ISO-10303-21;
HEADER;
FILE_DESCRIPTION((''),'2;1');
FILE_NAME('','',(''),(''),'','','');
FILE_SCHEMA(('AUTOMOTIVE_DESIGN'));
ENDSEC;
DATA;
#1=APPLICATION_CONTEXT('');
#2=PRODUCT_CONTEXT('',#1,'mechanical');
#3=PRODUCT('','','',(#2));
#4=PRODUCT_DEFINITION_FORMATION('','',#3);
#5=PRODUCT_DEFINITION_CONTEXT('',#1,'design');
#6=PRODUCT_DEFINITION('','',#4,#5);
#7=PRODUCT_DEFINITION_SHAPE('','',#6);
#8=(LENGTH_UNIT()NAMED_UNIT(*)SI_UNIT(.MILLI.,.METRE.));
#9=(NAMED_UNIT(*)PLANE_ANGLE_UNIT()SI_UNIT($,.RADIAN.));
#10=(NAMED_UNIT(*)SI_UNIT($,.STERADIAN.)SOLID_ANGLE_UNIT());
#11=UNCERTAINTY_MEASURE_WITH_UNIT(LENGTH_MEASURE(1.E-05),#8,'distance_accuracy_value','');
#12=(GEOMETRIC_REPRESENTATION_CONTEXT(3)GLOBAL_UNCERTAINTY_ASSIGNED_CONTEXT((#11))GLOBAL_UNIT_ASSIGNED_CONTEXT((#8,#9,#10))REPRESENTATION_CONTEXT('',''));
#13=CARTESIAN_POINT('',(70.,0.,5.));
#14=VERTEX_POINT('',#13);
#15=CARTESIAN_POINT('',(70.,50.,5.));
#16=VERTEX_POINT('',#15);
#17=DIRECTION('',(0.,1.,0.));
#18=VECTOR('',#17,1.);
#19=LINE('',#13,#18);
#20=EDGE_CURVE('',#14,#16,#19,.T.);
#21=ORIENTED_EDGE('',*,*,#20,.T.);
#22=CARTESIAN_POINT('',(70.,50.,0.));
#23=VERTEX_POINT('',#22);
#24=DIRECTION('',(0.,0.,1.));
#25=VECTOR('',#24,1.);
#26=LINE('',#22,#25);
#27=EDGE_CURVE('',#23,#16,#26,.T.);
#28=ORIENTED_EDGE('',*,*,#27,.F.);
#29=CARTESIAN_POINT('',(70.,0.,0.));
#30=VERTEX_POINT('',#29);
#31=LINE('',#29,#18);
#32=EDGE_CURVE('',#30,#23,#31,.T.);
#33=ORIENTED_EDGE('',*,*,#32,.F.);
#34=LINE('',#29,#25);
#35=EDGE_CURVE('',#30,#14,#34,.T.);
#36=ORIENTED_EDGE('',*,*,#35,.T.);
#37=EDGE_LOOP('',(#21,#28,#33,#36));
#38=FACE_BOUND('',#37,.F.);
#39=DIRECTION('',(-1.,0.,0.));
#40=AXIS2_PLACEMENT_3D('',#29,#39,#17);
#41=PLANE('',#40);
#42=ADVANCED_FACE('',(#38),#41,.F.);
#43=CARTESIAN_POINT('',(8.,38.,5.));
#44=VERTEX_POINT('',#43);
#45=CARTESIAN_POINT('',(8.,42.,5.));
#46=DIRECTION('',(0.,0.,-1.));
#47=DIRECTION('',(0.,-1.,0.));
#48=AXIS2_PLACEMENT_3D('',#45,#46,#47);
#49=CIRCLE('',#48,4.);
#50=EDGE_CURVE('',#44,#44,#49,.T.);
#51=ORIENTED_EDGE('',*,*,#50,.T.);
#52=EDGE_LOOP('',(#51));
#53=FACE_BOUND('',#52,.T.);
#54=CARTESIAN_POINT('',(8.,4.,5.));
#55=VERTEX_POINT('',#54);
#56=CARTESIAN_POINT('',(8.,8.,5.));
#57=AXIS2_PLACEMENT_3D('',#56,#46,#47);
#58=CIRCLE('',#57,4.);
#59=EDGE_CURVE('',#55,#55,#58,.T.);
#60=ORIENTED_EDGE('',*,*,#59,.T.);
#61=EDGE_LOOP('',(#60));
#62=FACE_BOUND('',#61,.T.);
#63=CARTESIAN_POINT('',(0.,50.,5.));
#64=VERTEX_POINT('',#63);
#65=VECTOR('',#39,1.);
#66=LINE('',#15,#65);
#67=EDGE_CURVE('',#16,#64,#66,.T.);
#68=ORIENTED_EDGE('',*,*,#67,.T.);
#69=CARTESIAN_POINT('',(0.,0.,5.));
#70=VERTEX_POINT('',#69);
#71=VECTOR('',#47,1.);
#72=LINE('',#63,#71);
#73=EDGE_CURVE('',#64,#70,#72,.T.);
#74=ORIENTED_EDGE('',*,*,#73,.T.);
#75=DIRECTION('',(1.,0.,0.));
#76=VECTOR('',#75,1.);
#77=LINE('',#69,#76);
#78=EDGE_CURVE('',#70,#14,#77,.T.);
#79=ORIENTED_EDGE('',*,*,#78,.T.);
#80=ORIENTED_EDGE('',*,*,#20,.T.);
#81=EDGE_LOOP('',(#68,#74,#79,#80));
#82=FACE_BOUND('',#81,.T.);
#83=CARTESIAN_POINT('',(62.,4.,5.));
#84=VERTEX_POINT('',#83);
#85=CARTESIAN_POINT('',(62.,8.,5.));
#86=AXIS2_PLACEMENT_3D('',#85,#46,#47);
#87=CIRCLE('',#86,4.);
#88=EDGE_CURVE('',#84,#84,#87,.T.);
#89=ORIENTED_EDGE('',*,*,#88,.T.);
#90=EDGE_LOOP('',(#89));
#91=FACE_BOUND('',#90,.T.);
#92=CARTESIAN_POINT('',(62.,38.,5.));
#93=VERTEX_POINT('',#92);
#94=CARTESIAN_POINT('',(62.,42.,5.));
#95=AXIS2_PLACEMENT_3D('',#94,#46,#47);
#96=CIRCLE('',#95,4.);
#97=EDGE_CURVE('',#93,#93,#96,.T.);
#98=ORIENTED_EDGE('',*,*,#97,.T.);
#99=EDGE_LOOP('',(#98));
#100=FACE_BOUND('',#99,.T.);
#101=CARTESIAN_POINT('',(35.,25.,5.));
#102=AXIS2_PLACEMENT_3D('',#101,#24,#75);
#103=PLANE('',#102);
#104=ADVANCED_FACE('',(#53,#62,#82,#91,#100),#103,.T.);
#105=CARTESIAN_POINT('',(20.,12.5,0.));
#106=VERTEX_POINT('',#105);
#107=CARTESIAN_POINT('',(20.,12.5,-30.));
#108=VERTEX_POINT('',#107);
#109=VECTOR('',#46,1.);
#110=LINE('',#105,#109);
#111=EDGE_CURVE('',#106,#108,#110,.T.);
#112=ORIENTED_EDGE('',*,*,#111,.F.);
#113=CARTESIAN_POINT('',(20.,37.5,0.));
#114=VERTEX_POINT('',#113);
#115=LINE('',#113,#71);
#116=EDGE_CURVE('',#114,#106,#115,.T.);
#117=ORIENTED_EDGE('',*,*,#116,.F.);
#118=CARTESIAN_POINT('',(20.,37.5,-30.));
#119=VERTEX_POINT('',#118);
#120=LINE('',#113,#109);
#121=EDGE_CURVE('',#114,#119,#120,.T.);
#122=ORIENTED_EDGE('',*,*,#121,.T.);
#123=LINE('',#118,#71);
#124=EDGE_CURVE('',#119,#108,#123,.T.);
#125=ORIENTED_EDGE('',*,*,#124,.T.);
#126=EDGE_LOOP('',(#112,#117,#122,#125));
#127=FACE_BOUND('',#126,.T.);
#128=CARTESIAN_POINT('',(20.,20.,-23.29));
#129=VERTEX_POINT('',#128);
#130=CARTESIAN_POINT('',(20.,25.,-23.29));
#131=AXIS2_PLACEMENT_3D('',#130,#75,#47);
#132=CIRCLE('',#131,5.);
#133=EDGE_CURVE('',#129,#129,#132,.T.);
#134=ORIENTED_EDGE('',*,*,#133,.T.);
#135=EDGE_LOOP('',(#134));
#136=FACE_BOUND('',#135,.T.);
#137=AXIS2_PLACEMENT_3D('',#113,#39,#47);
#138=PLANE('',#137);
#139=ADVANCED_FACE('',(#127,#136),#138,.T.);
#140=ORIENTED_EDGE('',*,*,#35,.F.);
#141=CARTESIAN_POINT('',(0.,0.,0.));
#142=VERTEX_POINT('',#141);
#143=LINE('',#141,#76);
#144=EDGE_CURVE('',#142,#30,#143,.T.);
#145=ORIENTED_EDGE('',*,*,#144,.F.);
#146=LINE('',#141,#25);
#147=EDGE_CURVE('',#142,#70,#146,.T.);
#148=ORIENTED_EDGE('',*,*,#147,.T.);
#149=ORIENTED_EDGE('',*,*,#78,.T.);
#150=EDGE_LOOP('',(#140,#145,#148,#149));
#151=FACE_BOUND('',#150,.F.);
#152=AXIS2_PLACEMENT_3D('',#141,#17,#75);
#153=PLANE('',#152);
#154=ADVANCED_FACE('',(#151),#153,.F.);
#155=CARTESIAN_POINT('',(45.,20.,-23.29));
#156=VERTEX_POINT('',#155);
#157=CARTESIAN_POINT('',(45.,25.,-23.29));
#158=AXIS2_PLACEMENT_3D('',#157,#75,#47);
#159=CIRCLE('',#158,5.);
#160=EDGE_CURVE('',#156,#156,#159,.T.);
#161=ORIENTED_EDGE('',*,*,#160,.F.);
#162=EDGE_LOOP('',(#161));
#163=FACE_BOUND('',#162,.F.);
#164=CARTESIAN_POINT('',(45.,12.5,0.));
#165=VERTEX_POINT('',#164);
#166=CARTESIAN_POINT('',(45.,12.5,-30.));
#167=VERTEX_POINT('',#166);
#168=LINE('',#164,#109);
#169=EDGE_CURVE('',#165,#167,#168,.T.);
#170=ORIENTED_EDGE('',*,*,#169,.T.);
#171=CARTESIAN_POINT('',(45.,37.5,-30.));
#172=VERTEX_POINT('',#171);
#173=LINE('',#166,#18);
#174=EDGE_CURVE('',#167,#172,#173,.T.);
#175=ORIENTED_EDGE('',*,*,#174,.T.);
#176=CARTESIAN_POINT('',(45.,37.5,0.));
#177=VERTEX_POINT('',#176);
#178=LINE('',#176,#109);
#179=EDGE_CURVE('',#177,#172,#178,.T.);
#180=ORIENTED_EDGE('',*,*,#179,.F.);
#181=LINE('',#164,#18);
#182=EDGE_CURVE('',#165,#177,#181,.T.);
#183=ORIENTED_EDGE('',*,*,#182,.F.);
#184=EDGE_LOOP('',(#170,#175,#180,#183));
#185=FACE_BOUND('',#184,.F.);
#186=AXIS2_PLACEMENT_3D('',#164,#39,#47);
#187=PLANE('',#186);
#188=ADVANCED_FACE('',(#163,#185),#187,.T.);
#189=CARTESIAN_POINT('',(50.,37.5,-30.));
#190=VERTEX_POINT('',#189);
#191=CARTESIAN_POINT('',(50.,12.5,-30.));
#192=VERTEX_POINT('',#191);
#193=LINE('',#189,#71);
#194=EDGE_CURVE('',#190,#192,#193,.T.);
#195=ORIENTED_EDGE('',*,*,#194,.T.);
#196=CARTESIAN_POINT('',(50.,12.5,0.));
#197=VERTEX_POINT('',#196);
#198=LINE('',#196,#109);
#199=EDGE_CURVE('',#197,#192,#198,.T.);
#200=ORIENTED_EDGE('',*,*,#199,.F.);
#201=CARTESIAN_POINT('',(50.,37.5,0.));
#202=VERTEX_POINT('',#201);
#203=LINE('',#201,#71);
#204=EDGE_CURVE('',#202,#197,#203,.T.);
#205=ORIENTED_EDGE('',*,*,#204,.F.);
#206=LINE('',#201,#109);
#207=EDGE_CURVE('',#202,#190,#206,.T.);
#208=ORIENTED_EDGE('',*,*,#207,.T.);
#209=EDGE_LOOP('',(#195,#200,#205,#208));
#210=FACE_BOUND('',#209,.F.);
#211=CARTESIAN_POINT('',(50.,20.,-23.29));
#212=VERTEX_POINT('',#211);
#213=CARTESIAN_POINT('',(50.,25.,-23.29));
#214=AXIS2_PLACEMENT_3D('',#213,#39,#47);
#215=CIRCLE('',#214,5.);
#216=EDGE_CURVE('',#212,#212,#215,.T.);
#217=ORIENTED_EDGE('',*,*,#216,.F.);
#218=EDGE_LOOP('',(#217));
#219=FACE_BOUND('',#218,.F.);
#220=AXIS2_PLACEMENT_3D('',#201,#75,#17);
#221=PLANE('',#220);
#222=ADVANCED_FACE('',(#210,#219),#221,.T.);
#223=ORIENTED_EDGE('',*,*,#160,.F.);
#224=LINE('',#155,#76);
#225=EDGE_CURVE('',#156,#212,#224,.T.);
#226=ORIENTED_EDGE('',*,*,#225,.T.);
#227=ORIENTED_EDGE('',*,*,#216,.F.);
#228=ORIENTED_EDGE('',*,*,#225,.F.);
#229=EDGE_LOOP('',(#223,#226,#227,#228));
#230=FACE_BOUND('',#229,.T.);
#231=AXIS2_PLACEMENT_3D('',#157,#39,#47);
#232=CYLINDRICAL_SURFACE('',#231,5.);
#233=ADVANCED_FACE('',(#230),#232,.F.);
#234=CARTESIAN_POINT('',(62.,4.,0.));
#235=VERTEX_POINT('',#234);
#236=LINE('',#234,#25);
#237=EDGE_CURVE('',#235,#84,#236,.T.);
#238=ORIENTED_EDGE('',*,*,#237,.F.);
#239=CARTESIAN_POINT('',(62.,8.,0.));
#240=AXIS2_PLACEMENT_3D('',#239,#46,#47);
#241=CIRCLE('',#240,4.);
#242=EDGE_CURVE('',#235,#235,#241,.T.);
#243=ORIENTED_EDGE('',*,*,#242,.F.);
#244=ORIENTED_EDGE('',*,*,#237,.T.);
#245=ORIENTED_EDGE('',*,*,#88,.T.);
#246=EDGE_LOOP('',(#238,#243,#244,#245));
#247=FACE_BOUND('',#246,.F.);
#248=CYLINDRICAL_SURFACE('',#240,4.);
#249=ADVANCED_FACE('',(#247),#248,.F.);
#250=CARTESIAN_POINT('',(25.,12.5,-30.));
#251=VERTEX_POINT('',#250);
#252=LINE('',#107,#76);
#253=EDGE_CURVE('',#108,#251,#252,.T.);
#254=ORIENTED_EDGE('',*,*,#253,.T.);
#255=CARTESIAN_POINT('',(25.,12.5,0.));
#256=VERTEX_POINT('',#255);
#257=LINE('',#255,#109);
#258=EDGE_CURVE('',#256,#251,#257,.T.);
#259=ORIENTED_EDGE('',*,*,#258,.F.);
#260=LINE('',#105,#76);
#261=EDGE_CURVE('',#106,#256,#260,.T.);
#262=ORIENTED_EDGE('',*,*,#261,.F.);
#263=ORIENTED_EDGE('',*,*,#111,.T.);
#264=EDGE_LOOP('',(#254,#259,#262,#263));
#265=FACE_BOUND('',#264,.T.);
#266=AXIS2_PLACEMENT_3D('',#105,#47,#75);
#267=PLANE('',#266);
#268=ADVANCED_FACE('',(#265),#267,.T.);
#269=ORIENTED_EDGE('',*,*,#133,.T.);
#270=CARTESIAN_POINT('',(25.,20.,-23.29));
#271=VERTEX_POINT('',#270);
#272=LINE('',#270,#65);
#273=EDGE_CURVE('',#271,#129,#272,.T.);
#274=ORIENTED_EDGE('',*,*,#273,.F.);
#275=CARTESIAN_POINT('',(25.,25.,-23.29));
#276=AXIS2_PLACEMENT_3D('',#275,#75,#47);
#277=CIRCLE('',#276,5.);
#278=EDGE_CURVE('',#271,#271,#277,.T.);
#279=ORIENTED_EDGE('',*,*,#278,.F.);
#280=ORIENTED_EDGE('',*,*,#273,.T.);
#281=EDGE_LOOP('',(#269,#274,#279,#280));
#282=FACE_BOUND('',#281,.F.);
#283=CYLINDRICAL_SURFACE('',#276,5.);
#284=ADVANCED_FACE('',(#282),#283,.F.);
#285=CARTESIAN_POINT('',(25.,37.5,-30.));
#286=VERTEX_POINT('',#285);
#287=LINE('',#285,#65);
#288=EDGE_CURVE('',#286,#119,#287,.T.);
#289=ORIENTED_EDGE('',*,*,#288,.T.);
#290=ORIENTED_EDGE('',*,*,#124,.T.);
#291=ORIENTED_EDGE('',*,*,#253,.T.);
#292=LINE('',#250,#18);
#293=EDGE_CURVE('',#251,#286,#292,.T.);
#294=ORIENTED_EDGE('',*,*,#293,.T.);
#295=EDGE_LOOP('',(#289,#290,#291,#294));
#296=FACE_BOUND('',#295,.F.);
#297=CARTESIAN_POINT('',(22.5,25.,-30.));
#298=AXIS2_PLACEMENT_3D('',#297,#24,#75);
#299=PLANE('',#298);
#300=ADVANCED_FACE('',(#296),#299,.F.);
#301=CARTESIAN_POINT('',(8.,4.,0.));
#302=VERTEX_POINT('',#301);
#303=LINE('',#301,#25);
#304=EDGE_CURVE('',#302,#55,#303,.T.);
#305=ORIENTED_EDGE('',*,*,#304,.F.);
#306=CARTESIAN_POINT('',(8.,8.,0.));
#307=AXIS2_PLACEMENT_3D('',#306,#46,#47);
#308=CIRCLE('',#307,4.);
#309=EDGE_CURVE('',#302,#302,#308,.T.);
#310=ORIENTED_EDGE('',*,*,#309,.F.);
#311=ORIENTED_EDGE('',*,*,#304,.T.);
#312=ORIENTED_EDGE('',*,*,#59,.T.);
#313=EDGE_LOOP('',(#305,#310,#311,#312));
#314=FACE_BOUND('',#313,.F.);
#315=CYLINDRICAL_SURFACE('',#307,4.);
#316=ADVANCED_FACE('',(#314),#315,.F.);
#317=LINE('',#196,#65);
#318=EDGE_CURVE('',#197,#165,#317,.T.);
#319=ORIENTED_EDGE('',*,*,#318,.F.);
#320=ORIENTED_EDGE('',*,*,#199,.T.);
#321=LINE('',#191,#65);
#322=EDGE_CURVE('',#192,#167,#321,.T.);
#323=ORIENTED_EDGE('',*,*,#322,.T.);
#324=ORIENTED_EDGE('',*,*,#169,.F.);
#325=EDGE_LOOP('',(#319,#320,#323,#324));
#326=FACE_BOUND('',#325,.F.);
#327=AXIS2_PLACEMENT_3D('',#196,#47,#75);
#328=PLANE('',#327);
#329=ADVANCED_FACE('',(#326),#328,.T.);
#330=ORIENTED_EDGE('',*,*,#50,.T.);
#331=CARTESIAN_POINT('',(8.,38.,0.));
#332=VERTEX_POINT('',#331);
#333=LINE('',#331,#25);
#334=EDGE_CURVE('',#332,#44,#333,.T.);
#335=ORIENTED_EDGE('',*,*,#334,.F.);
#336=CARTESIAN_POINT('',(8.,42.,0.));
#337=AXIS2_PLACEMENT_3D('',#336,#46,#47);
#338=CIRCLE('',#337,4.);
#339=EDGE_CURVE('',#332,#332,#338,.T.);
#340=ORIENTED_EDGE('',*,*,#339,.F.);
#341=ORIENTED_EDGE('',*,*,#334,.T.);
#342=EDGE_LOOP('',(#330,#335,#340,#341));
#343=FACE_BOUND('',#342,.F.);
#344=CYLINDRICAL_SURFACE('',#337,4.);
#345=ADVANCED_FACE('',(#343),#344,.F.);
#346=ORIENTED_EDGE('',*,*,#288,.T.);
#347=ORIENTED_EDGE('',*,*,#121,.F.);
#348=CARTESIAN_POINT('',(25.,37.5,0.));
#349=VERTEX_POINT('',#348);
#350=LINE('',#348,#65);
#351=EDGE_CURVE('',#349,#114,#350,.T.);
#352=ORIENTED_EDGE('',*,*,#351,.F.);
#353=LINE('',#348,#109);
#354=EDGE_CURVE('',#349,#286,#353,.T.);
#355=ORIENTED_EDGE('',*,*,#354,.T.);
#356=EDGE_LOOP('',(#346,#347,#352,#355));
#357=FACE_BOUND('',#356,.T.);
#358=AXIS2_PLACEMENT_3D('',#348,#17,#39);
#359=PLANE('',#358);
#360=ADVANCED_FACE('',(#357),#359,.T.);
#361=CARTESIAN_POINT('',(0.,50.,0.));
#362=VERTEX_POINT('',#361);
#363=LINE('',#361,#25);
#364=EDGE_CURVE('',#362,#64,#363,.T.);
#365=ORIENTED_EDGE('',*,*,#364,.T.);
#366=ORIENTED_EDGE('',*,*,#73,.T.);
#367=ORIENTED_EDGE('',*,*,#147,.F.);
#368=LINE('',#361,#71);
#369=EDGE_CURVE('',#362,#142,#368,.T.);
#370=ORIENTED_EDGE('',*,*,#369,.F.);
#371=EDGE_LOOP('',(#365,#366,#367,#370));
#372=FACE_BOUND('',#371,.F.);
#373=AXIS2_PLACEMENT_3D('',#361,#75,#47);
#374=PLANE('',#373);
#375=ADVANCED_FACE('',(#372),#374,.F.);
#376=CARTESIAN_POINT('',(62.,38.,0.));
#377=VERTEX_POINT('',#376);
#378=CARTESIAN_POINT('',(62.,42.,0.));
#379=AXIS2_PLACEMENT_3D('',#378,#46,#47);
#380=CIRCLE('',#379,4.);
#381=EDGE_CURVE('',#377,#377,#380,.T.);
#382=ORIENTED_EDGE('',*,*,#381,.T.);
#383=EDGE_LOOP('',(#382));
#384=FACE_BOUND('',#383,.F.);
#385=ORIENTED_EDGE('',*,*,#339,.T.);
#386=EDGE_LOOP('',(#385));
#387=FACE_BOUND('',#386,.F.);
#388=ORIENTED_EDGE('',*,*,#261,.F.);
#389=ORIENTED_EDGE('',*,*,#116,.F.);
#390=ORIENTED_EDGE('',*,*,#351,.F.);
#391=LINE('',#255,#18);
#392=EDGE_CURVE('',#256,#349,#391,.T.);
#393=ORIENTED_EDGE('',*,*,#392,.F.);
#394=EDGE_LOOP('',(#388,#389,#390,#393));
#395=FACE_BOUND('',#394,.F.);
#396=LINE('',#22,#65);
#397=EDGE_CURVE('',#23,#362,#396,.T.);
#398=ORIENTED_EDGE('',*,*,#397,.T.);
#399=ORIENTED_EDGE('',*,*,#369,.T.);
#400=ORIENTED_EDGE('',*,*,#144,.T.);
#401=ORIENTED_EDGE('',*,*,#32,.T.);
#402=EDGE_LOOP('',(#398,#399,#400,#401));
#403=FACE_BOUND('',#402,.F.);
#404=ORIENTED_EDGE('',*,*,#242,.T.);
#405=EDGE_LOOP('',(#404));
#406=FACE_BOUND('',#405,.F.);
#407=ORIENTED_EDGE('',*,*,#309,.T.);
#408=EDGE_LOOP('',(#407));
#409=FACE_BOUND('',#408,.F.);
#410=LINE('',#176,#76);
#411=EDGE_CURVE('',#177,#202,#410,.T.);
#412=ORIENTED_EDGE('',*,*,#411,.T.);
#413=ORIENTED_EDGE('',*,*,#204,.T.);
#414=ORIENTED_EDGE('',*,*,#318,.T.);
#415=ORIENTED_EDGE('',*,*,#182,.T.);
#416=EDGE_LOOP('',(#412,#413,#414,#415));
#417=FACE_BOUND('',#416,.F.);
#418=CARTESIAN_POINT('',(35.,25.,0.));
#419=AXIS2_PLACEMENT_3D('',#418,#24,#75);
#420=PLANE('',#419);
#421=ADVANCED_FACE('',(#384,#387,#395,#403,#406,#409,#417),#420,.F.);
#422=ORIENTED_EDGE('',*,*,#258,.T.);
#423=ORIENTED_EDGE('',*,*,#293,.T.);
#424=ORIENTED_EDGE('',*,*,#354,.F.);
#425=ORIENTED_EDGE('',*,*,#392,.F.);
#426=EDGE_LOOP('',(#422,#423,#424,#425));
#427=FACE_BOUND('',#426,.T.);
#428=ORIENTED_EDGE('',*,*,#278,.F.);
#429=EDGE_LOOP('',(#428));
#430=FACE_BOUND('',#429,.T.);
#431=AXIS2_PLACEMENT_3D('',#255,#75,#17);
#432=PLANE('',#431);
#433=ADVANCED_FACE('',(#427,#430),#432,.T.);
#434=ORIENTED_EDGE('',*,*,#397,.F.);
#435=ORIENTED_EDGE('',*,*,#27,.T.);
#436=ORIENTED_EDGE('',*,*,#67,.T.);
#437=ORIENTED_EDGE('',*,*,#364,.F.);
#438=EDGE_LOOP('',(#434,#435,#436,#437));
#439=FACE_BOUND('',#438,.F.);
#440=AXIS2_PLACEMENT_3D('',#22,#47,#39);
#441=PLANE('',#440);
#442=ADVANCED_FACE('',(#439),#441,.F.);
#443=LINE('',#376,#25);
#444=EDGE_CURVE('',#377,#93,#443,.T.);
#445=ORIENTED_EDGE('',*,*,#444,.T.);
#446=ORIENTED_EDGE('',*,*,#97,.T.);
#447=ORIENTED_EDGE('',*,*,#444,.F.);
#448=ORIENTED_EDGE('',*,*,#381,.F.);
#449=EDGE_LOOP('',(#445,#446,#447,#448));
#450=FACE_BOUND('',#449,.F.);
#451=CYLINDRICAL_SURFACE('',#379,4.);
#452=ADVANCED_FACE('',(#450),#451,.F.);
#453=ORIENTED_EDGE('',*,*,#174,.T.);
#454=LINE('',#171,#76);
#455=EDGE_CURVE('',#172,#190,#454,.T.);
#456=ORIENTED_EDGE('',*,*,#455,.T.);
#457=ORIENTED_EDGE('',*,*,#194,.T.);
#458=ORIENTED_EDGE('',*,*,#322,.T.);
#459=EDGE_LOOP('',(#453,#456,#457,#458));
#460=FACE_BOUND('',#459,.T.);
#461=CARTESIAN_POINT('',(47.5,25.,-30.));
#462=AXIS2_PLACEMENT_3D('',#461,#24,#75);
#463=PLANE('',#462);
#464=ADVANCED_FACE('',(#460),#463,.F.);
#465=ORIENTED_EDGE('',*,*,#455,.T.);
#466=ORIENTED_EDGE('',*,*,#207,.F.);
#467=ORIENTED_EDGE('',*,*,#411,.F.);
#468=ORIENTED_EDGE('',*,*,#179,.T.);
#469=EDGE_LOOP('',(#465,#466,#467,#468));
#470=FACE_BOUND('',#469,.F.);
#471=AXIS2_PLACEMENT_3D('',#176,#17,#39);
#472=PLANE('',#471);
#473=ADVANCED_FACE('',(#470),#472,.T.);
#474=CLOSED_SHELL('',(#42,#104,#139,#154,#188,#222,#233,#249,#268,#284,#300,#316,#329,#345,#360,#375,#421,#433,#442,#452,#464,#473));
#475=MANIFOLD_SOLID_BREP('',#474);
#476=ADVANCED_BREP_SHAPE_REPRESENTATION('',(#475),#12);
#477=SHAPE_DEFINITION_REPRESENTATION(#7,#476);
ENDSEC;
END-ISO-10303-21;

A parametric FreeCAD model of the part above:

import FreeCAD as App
import Part
import Sketcher

V = App.Vector


def add_polygon(sketch, points):
    """Adds a closed chain of lines whose ends are joined by coincident constraints."""
    first, n = sketch.GeometryCount, len(points)
    for a, b in zip(points, points[1:] + points[:1]):
        sketch.addGeometry(Part.LineSegment(App.Vector(*a, 0), App.Vector(*b, 0)), False)
    for i in range(n):
        sketch.addConstraint(Sketcher.Constraint("Coincident", first + i, 2, first + (i + 1) % n, 1))

doc = App.newDocument("Part")
params = doc.addObject("Spreadsheet::Sheet", "Params")
for row, (alias, value) in enumerate([
    ("sketch1_width", "70 mm"),
    ("sketch1_height", "50 mm"),
    ("pad1_length", "5 mm"),
    ("sketch2_width", "5 mm"),
    ("sketch2_height", "25 mm"),
    ("pad2_length", "30 mm"),
    ("sketch3_diameter", "10 mm"),
    ("pocket1_length", "57.348 mm"),
    ("sketch4_diameter", "8 mm"),
    ("pocket2_length", "22.6316 mm"),
], start=1):
    params.set(f"A{row}", alias)
    params.set(f"B{row}", "=" + value)
    params.setAlias(f"B{row}", alias)

body = doc.addObject("PartDesign::Body", "Body")

sketch1 = doc.addObject("Sketcher::SketchObject", "Sketch")
body.addObject(sketch1)
sketch1.AttachmentSupport = (doc.XY_Plane, [""])
sketch1.MapMode = "FlatFace"
add_polygon(sketch1, [(0, 50), (0, 0), (70, 0), (70, 50)])
sketch1.addConstraint([
    Sketcher.Constraint("Vertical", 0),
    Sketcher.Constraint("Horizontal", 1),
    Sketcher.Constraint("Vertical", 2),
    Sketcher.Constraint("Horizontal", 3),
    Sketcher.Constraint("Coincident", 0, 2, -1, 1),
    Sketcher.Constraint("DistanceX", 1, 1, 1, 2, 70.0),
    Sketcher.Constraint("DistanceY", 0, 2, 0, 1, 50.0),
])
sketch1.setExpression("Constraints[9]", "Params.sketch1_width")
sketch1.setExpression("Constraints[10]", "Params.sketch1_height")
pad1 = doc.addObject("PartDesign::Pad", "Pad")
body.addObject(pad1)
pad1.Profile = sketch1
pad1.setExpression("Length", "Params.pad1_length")

sketch2 = doc.addObject("Sketcher::SketchObject", "Sketch001")
body.addObject(sketch2)
sketch2.AttachmentSupport = (doc.XY_Plane, [""])
sketch2.MapMode = "FlatFace"
add_polygon(sketch2, [(20, 12.5), (25, 12.5), (25, 37.5), (20, 37.5)])
sketch2.addConstraint([
    Sketcher.Constraint("Horizontal", 0),
    Sketcher.Constraint("Vertical", 1),
    Sketcher.Constraint("Horizontal", 2),
    Sketcher.Constraint("Vertical", 3),
    Sketcher.Constraint("DistanceX", 0, 1, 0, 2, 5.0),
    Sketcher.Constraint("DistanceY", 1, 1, 1, 2, 25.0),
    Sketcher.Constraint("DistanceX", -1, 1, 0, 2, 25.0),
    Sketcher.Constraint("DistanceY", -1, 1, 0, 2, 12.5),
])
sketch2.setExpression("Constraints[8]", "Params.sketch2_width")
sketch2.setExpression("Constraints[9]", "Params.sketch2_height")
pad2 = doc.addObject("PartDesign::Pad", "Pad001")
body.addObject(pad2)
pad2.Profile = sketch2
pad2.setExpression("Length", "Params.pad2_length")
pad2.Reversed = True

sketch3 = doc.addObject("Sketcher::SketchObject", "Sketch002")
body.addObject(sketch3)
sketch3.AttachmentSupport = (doc.YZ_Plane, [""])
sketch3.MapMode = "FlatFace"
sketch3.AttachmentOffset = App.Placement(V(0, 0, 25), App.Rotation())
sketch3.addGeometry(Part.Circle(V(25, -23.29, 0), V(0, 0, 1), 5), False)
sketch3.addConstraint([
    Sketcher.Constraint("Diameter", 0, 10.0),
    Sketcher.Constraint("DistanceX", -1, 1, 0, 3, 25.0),
    Sketcher.Constraint("DistanceY", 0, 3, -1, 1, 23.29),
])
sketch3.setExpression("Constraints[0]", "Params.sketch3_diameter")
pocket1 = doc.addObject("PartDesign::Pocket", "Pocket")
body.addObject(pocket1)
pocket1.Profile = sketch3
pocket1.setExpression("Length", "Params.pocket1_length")

sketch4 = doc.addObject("Sketcher::SketchObject", "Sketch003")
body.addObject(sketch4)
sketch4.AttachmentSupport = (doc.XY_Plane, [""])
sketch4.MapMode = "FlatFace"
sketch4.addGeometry([
    Part.Circle(V(62, 8, 0), V(0, 0, 1), 4),
    Part.Circle(V(62, 42, 0), V(0, 0, 1), 4),
    Part.Circle(V(8, 42, 0), V(0, 0, 1), 4),
    Part.Circle(V(8, 8, 0), V(0, 0, 1), 4),
], False)
sketch4.addConstraint([
    Sketcher.Constraint("Equal", 0, 1),
    Sketcher.Constraint("Equal", 1, 2),
    Sketcher.Constraint("Equal", 2, 3),
    Sketcher.Constraint("Horizontal", 1, 3, 2, 3),
    Sketcher.Constraint("Horizontal", 0, 3, 3, 3),
    Sketcher.Constraint("Vertical", 0, 3, 1, 3),
    Sketcher.Constraint("Vertical", 2, 3, 3, 3),
    Sketcher.Constraint("Diameter", 0, 8.0),
    Sketcher.Constraint("DistanceX", -1, 1, 0, 3, 62.0),
    Sketcher.Constraint("DistanceY", -1, 1, 0, 3, 8.0),
    Sketcher.Constraint("DistanceY", -1, 1, 1, 3, 42.0),
    Sketcher.Constraint("DistanceX", -1, 1, 2, 3, 8.0),
])
sketch4.setExpression("Constraints[7]", "Params.sketch4_diameter")
pocket2 = doc.addObject("PartDesign::Pocket", "Pocket001")
body.addObject(pocket2)
pocket2.Profile = sketch4
pocket2.setExpression("Length", "Params.pocket2_length")
pocket2.Reversed = True
doc.recompute()

datumplane = doc.addObject("PartDesign::Plane", "DatumPlane")
body.addObject(datumplane)
datumplane.AttachmentSupport = (doc.YZ_Plane, [""])
datumplane.MapMode = "FlatFace"
datumplane.AttachmentOffset = App.Placement(V(0, 0, 35), App.Rotation())
mirrored = doc.addObject("PartDesign::Mirrored", "Mirrored")
body.addObject(mirrored)
mirrored.Originals = [pad2, pocket1]
mirrored.MirrorPlane = (datumplane, [""])
body.Tip = mirrored

doc.recompute()
